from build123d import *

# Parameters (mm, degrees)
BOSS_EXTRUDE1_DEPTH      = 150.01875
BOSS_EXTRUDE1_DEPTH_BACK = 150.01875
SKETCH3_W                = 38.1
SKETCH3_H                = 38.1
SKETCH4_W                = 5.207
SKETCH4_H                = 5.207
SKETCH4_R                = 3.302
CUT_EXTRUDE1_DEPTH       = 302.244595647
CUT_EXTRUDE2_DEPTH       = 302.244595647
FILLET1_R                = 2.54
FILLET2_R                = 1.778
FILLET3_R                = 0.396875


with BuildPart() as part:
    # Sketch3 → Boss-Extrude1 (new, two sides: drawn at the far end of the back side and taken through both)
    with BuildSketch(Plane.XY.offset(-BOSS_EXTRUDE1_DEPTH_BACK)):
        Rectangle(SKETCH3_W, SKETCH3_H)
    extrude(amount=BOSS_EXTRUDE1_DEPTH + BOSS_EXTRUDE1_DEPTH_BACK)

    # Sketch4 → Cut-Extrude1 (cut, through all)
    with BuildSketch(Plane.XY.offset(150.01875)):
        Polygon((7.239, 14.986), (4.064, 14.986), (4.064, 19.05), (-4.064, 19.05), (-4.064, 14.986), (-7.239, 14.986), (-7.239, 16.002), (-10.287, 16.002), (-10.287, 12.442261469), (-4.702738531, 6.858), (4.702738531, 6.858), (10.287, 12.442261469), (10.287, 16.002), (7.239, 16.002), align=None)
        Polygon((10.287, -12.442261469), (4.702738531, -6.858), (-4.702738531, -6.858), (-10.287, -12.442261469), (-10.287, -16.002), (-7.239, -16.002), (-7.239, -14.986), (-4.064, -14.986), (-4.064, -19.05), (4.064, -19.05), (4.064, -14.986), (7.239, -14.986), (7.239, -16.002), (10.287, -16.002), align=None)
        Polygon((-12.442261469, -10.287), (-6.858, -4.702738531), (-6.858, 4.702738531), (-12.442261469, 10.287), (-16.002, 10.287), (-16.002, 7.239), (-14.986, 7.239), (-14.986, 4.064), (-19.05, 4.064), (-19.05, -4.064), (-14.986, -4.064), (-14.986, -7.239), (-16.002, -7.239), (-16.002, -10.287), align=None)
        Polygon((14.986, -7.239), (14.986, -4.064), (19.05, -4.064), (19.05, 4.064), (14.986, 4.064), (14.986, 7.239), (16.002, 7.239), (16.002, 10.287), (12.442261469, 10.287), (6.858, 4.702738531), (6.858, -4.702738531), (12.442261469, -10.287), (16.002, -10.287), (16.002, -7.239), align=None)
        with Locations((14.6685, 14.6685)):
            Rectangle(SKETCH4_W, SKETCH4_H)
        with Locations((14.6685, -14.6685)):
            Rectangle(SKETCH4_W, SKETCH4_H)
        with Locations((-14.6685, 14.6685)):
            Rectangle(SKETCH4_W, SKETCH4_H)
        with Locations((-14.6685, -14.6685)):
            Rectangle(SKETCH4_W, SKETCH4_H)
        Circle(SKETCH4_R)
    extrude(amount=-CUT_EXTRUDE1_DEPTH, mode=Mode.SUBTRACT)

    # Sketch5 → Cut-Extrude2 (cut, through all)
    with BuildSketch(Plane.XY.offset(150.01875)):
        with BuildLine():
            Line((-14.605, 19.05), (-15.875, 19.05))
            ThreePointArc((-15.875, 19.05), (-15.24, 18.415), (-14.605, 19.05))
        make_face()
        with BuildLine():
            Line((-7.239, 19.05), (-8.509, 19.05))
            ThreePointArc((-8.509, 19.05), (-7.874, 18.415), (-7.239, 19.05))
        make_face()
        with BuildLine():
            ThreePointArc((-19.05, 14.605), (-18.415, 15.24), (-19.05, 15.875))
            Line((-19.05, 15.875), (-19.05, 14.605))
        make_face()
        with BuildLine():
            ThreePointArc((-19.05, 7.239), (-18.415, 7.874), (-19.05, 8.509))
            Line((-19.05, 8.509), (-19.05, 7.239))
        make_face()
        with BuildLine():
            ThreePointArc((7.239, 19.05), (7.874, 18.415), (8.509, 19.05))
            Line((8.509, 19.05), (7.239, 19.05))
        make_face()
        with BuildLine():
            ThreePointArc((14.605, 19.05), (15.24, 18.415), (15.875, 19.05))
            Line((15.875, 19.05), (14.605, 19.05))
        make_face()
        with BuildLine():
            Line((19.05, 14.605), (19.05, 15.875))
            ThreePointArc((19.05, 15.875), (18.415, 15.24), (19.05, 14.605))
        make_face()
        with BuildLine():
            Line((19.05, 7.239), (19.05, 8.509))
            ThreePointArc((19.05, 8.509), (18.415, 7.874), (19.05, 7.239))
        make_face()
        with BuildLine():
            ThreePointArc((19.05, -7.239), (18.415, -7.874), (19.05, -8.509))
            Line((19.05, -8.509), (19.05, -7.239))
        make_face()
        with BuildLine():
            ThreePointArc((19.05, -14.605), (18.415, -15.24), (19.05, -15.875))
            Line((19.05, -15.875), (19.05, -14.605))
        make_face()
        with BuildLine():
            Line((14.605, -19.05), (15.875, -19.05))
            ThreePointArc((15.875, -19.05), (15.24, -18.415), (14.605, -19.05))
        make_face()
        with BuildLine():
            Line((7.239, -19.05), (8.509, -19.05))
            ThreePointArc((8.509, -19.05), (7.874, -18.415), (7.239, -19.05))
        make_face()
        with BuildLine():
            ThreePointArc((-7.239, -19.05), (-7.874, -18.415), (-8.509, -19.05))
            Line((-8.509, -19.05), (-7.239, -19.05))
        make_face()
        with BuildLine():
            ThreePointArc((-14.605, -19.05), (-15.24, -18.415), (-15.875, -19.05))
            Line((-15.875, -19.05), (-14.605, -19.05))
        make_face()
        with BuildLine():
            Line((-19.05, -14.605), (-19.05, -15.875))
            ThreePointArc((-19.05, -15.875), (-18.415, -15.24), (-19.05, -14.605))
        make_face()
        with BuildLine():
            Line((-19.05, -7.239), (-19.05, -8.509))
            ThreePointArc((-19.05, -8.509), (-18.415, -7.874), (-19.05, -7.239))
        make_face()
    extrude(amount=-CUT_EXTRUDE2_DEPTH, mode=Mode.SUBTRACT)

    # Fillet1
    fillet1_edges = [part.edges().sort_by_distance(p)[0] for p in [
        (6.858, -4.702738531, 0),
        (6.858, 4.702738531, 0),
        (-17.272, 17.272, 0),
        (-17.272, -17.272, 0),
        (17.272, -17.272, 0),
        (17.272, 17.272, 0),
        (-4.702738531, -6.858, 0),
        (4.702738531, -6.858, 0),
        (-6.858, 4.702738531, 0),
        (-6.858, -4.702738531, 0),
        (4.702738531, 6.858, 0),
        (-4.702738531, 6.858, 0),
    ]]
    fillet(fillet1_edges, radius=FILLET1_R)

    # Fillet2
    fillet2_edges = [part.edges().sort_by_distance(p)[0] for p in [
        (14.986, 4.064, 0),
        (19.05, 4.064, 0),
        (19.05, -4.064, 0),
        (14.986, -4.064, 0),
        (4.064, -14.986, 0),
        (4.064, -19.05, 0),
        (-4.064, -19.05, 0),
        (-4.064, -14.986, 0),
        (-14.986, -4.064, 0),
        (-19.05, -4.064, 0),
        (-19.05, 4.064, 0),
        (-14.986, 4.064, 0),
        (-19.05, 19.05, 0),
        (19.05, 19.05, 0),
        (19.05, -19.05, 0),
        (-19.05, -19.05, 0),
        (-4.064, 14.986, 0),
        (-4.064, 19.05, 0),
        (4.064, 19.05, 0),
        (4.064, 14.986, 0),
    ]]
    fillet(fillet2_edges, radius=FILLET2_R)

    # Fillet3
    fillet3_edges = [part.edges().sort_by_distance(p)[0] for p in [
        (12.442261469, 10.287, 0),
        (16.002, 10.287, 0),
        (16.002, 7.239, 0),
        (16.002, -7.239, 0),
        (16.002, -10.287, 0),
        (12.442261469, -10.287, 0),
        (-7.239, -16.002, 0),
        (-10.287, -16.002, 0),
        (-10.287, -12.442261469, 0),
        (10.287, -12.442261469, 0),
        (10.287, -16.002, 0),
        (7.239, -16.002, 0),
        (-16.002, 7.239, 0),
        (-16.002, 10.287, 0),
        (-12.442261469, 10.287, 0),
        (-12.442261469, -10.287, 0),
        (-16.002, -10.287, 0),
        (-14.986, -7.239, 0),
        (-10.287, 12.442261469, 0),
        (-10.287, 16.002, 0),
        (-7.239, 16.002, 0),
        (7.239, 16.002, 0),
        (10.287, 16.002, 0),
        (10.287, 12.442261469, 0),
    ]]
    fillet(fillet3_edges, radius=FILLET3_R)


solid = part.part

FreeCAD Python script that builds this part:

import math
import FreeCAD as App
import Part
import Sketcher
Q = App.Units.Quantity


def edges_at(feature, points):
    """Names of the edges that pass closest to the given points."""
    edges = feature.Shape.Edges
    near = lambda p: min(range(len(edges)), key=lambda i: edges[i].distToShape(Part.Vertex(*p))[0])
    return sorted({f"Edge{near(p) + 1}" for p in points})

doc = App.newDocument("Part")
body = doc.addObject("PartDesign::Body", "Body")

sketch1 = doc.addObject("Sketcher::SketchObject", "Sketch")
body.addObject(sketch1)
sketch1.AttachmentSupport = (doc.XY_Plane, [""])
sketch1.MapMode = "FlatFace"
sketch1.addGeometry(Part.LineSegment(App.Vector(-19, 19, 0), App.Vector(-19, -19, 0)), False)
sketch1.addGeometry(Part.LineSegment(App.Vector(-19, -19, 0), App.Vector(19, -19, 0)), False)
sketch1.addGeometry(Part.LineSegment(App.Vector(19, -19, 0), App.Vector(19, 19, 0)), False)
sketch1.addGeometry(Part.LineSegment(App.Vector(19, 19, 0), App.Vector(-19, 19, 0)), False)
sketch1.addConstraint(Sketcher.Constraint("Coincident", 0, 2, 1, 1))
sketch1.addConstraint(Sketcher.Constraint("Coincident", 1, 2, 2, 1))
sketch1.addConstraint(Sketcher.Constraint("Coincident", 2, 2, 3, 1))
sketch1.addConstraint(Sketcher.Constraint("Coincident", 3, 2, 0, 1))
sketch1.addConstraint(Sketcher.Constraint("Vertical", 0))
sketch1.addConstraint(Sketcher.Constraint("Horizontal", 1))
sketch1.addConstraint(Sketcher.Constraint("Vertical", 2))
sketch1.addConstraint(Sketcher.Constraint("Horizontal", 3))
sketch1.addConstraint(Sketcher.Constraint("Symmetric", 0, 2, 2, 2, -1, 1))
sketch1.addConstraint(Sketcher.Constraint("Equal", 3, 0))
sketch1.addConstraint(Sketcher.Constraint("DistanceX", 1, 1, 1, 2, Q("1.5 in")))
pad1 = doc.addObject("PartDesign::Pad", "Pad")
body.addObject(pad1)
pad1.Profile = sketch1
pad1.Type = "TwoLengths"
pad1.Length = Q("5.90625 in")
pad1.Length2 = Q("5.90625 in")

sketch2 = doc.addObject("Sketcher::SketchObject", "Sketch001")
body.addObject(sketch2)
sketch2.AttachmentSupport = (doc.XY_Plane, [""])
sketch2.MapMode = "FlatFace"
sketch2.AttachmentOffset = App.Placement(App.Vector(0, 0, 5.90625 * 25.4), App.Rotation())
sketch2.addGeometry(Part.LineSegment(App.Vector(7.2, 15, 0), App.Vector(4.1, 15, 0)), False)
sketch2.addGeometry(Part.LineSegment(App.Vector(4.1, 15, 0), App.Vector(4.1, 19.1, 0)), False)
sketch2.addGeometry(Part.LineSegment(App.Vector(4.1, 19.1, 0), App.Vector(-4.1, 19.1, 0)), False)
sketch2.addGeometry(Part.LineSegment(App.Vector(-4.1, 19.1, 0), App.Vector(-4.1, 15, 0)), False)
sketch2.addGeometry(Part.LineSegment(App.Vector(-4.1, 15, 0), App.Vector(-7.2, 15, 0)), False)
sketch2.addGeometry(Part.LineSegment(App.Vector(-7.2, 15, 0), App.Vector(-7.2, 16, 0)), False)
sketch2.addGeometry(Part.LineSegment(App.Vector(-7.2, 16, 0), App.Vector(-10.3, 16, 0)), False)
sketch2.addGeometry(Part.LineSegment(App.Vector(-10.3, 16, 0), App.Vector(-10.3, 12.4, 0)), False)
sketch2.addGeometry(Part.LineSegment(App.Vector(-10.3, 12.4, 0), App.Vector(-4.7, 6.9, 0)), False)
sketch2.addGeometry(Part.LineSegment(App.Vector(-4.7, 6.9, 0), App.Vector(4.7, 6.9, 0)), False)
sketch2.addGeometry(Part.LineSegment(App.Vector(4.7, 6.9, 0), App.Vector(10.3, 12.4, 0)), False)
sketch2.addGeometry(Part.LineSegment(App.Vector(10.3, 12.4, 0), App.Vector(10.3, 16, 0)), False)
sketch2.addGeometry(Part.LineSegment(App.Vector(10.3, 16, 0), App.Vector(7.2, 16, 0)), False)
sketch2.addGeometry(Part.LineSegment(App.Vector(7.2, 16, 0), App.Vector(7.2, 15, 0)), False)
sketch2.addGeometry(Part.LineSegment(App.Vector(10.3, -12.4, 0), App.Vector(4.7, -6.9, 0)), False)
sketch2.addGeometry(Part.LineSegment(App.Vector(4.7, -6.9, 0), App.Vector(-4.7, -6.9, 0)), False)
sketch2.addGeometry(Part.LineSegment(App.Vector(-4.7, -6.9, 0), App.Vector(-10.3, -12.4, 0)), False)
sketch2.addGeometry(Part.LineSegment(App.Vector(-10.3, -12.4, 0), App.Vector(-10.3, -16, 0)), False)
sketch2.addGeometry(Part.LineSegment(App.Vector(-10.3, -16, 0), App.Vector(-7.2, -16, 0)), False)
sketch2.addGeometry(Part.LineSegment(App.Vector(-7.2, -16, 0), App.Vector(-7.2, -15, 0)), False)
sketch2.addGeometry(Part.LineSegment(App.Vector(-7.2, -15, 0), App.Vector(-4.1, -15, 0)), False)
sketch2.addGeometry(Part.LineSegment(App.Vector(-4.1, -15, 0), App.Vector(-4.1, -19.1, 0)), False)
sketch2.addGeometry(Part.LineSegment(App.Vector(-4.1, -19.1, 0), App.Vector(4.1, -19.1, 0)), False)
sketch2.addGeometry(Part.LineSegment(App.Vector(4.1, -19.1, 0), App.Vector(4.1, -15, 0)), False)
sketch2.addGeometry(Part.LineSegment(App.Vector(4.1, -15, 0), App.Vector(7.2, -15, 0)), False)
sketch2.addGeometry(Part.LineSegment(App.Vector(7.2, -15, 0), App.Vector(7.2, -16, 0)), False)
sketch2.addGeometry(Part.LineSegment(App.Vector(7.2, -16, 0), App.Vector(10.3, -16, 0)), False)
sketch2.addGeometry(Part.LineSegment(App.Vector(10.3, -16, 0), App.Vector(10.3, -12.4, 0)), False)
sketch2.addGeometry(Part.LineSegment(App.Vector(-12.4, -10.3, 0), App.Vector(-6.9, -4.7, 0)), False)
sketch2.addGeometry(Part.LineSegment(App.Vector(-6.9, -4.7, 0), App.Vector(-6.9, 4.7, 0)), False)
sketch2.addGeometry(Part.LineSegment(App.Vector(-6.9, 4.7, 0), App.Vector(-12.4, 10.3, 0)), False)
sketch2.addGeometry(Part.LineSegment(App.Vector(-12.4, 10.3, 0), App.Vector(-16, 10.3, 0)), False)
sketch2.addGeometry(Part.LineSegment(App.Vector(-16, 10.3, 0), App.Vector(-16, 7.2, 0)), False)
sketch2.addGeometry(Part.LineSegment(App.Vector(-16, 7.2, 0), App.Vector(-15, 7.2, 0)), False)
sketch2.addGeometry(Part.LineSegment(App.Vector(-15, 7.2, 0), App.Vector(-15, 4.1, 0)), False)
sketch2.addGeometry(Part.LineSegment(App.Vector(-15, 4.1, 0), App.Vector(-19.1, 4.1, 0)), False)
sketch2.addGeometry(Part.LineSegment(App.Vector(-19.1, 4.1, 0), App.Vector(-19.1, -4.1, 0)), False)
sketch2.addGeometry(Part.LineSegment(App.Vector(-19.1, -4.1, 0), App.Vector(-15, -4.1, 0)), False)
sketch2.addGeometry(Part.LineSegment(App.Vector(-15, -4.1, 0), App.Vector(-15, -7.2, 0)), False)
sketch2.addGeometry(Part.LineSegment(App.Vector(-15, -7.2, 0), App.Vector(-16, -7.2, 0)), False)
sketch2.addGeometry(Part.LineSegment(App.Vector(-16, -7.2, 0), App.Vector(-16, -10.3, 0)), False)
sketch2.addGeometry(Part.LineSegment(App.Vector(-16, -10.3, 0), App.Vector(-12.4, -10.3, 0)), False)
sketch2.addGeometry(Part.LineSegment(App.Vector(15, -7.2, 0), App.Vector(15, -4.1, 0)), False)
sketch2.addGeometry(Part.LineSegment(App.Vector(15, -4.1, 0), App.Vector(19.1, -4.1, 0)), False)
sketch2.addGeometry(Part.LineSegment(App.Vector(19.1, -4.1, 0), App.Vector(19.1, 4.1, 0)), False)
sketch2.addGeometry(Part.LineSegment(App.Vector(19.1, 4.1, 0), App.Vector(15, 4.1, 0)), False)
sketch2.addGeometry(Part.LineSegment(App.Vector(15, 4.1, 0), App.Vector(15, 7.2, 0)), False)
sketch2.addGeometry(Part.LineSegment(App.Vector(15, 7.2, 0), App.Vector(16, 7.2, 0)), False)
sketch2.addGeometry(Part.LineSegment(App.Vector(16, 7.2, 0), App.Vector(16, 10.3, 0)), False)
sketch2.addGeometry(Part.LineSegment(App.Vector(16, 10.3, 0), App.Vector(12.4, 10.3, 0)), False)
sketch2.addGeometry(Part.LineSegment(App.Vector(12.4, 10.3, 0), App.Vector(6.9, 4.7, 0)), False)
sketch2.addGeometry(Part.LineSegment(App.Vector(6.9, 4.7, 0), App.Vector(6.9, -4.7, 0)), False)
sketch2.addGeometry(Part.LineSegment(App.Vector(6.9, -4.7, 0), App.Vector(12.4, -10.3, 0)), False)
sketch2.addGeometry(Part.LineSegment(App.Vector(12.4, -10.3, 0), App.Vector(16, -10.3, 0)), False)
sketch2.addGeometry(Part.LineSegment(App.Vector(16, -10.3, 0), App.Vector(16, -7.2, 0)), False)
sketch2.addGeometry(Part.LineSegment(App.Vector(16, -7.2, 0), App.Vector(15, -7.2, 0)), False)
sketch2.addGeometry(Part.LineSegment(App.Vector(12.1, 17.3, 0), App.Vector(12.1, 12.1, 0)), False)
sketch2.addGeometry(Part.LineSegment(App.Vector(12.1, 12.1, 0), App.Vector(17.3, 12.1, 0)), False)
sketch2.addGeometry(Part.LineSegment(App.Vector(17.3, 12.1, 0), App.Vector(17.3, 17.3, 0)), False)
sketch2.addGeometry(Part.LineSegment(App.Vector(17.3, 17.3, 0), App.Vector(12.1, 17.3, 0)), False)
sketch2.addGeometry(Part.LineSegment(App.Vector(12.1, -12.1, 0), App.Vector(12.1, -17.3, 0)), False)
sketch2.addGeometry(Part.LineSegment(App.Vector(12.1, -17.3, 0), App.Vector(17.3, -17.3, 0)), False)
sketch2.addGeometry(Part.LineSegment(App.Vector(17.3, -17.3, 0), App.Vector(17.3, -12.1, 0)), False)
sketch2.addGeometry(Part.LineSegment(App.Vector(17.3, -12.1, 0), App.Vector(12.1, -12.1, 0)), False)
sketch2.addGeometry(Part.LineSegment(App.Vector(-17.3, 17.3, 0), App.Vector(-17.3, 12.1, 0)), False)
sketch2.addGeometry(Part.LineSegment(App.Vector(-17.3, 12.1, 0), App.Vector(-12.1, 12.1, 0)), False)
sketch2.addGeometry(Part.LineSegment(App.Vector(-12.1, 12.1, 0), App.Vector(-12.1, 17.3, 0)), False)
sketch2.addGeometry(Part.LineSegment(App.Vector(-12.1, 17.3, 0), App.Vector(-17.3, 17.3, 0)), False)
sketch2.addGeometry(Part.LineSegment(App.Vector(-17.3, -12.1, 0), App.Vector(-17.3, -17.3, 0)), False)
sketch2.addGeometry(Part.LineSegment(App.Vector(-17.3, -17.3, 0), App.Vector(-12.1, -17.3, 0)), False)
sketch2.addGeometry(Part.LineSegment(App.Vector(-12.1, -17.3, 0), App.Vector(-12.1, -12.1, 0)), False)
sketch2.addGeometry(Part.LineSegment(App.Vector(-12.1, -12.1, 0), App.Vector(-17.3, -12.1, 0)), False)
sketch2.addGeometry(Part.Circle(App.Vector(0, 0, 0), App.Vector(0, 0, 1), 3.3), False)
sketch2.addConstraint(Sketcher.Constraint("Coincident", 0, 2, 1, 1))
sketch2.addConstraint(Sketcher.Constraint("Coincident", 1, 2, 2, 1))
sketch2.addConstraint(Sketcher.Constraint("Coincident", 2, 2, 3, 1))
sketch2.addConstraint(Sketcher.Constraint("Coincident", 3, 2, 4, 1))
sketch2.addConstraint(Sketcher.Constraint("Coincident", 4, 2, 5, 1))
sketch2.addConstraint(Sketcher.Constraint("Coincident", 5, 2, 6, 1))
sketch2.addConstraint(Sketcher.Constraint("Coincident", 6, 2, 7, 1))
sketch2.addConstraint(Sketcher.Constraint("Coincident", 7, 2, 8, 1))
sketch2.addConstraint(Sketcher.Constraint("Coincident", 8, 2, 9, 1))
sketch2.addConstraint(Sketcher.Constraint("Coincident", 9, 2, 10, 1))
sketch2.addConstraint(Sketcher.Constraint("Coincident", 10, 2, 11, 1))
sketch2.addConstraint(Sketcher.Constraint("Coincident", 11, 2, 12, 1))
sketch2.addConstraint(Sketcher.Constraint("Coincident", 12, 2, 13, 1))
sketch2.addConstraint(Sketcher.Constraint("Coincident", 13, 2, 0, 1))
sketch2.addConstraint(Sketcher.Constraint("Coincident", 14, 2, 15, 1))
sketch2.addConstraint(Sketcher.Constraint("Coincident", 15, 2, 16, 1))
sketch2.addConstraint(Sketcher.Constraint("Coincident", 16, 2, 17, 1))
sketch2.addConstraint(Sketcher.Constraint("Coincident", 17, 2, 18, 1))
sketch2.addConstraint(Sketcher.Constraint("Coincident", 18, 2, 19, 1))
sketch2.addConstraint(Sketcher.Constraint("Coincident", 19, 2, 20, 1))
sketch2.addConstraint(Sketcher.Constraint("Coincident", 20, 2, 21, 1))
sketch2.addConstraint(Sketcher.Constraint("Coincident", 21, 2, 22, 1))
sketch2.addConstraint(Sketcher.Constraint("Coincident", 22, 2, 23, 1))
sketch2.addConstraint(Sketcher.Constraint("Coincident", 23, 2, 24, 1))
sketch2.addConstraint(Sketcher.Constraint("Coincident", 24, 2, 25, 1))
sketch2.addConstraint(Sketcher.Constraint("Coincident", 25, 2, 26, 1))
sketch2.addConstraint(Sketcher.Constraint("Coincident", 26, 2, 27, 1))
sketch2.addConstraint(Sketcher.Constraint("Coincident", 27, 2, 14, 1))
sketch2.addConstraint(Sketcher.Constraint("Coincident", 28, 2, 29, 1))
sketch2.addConstraint(Sketcher.Constraint("Coincident", 29, 2, 30, 1))
sketch2.addConstraint(Sketcher.Constraint("Coincident", 30, 2, 31, 1))
sketch2.addConstraint(Sketcher.Constraint("Coincident", 31, 2, 32, 1))
sketch2.addConstraint(Sketcher.Constraint("Coincident", 32, 2, 33, 1))
sketch2.addConstraint(Sketcher.Constraint("Coincident", 33, 2, 34, 1))
sketch2.addConstraint(Sketcher.Constraint("Coincident", 34, 2, 35, 1))
sketch2.addConstraint(Sketcher.Constraint("Coincident", 35, 2, 36, 1))
sketch2.addConstraint(Sketcher.Constraint("Coincident", 36, 2, 37, 1))
sketch2.addConstraint(Sketcher.Constraint("Coincident", 37, 2, 38, 1))
sketch2.addConstraint(Sketcher.Constraint("Coincident", 38, 2, 39, 1))
sketch2.addConstraint(Sketcher.Constraint("Coincident", 39, 2, 40, 1))
sketch2.addConstraint(Sketcher.Constraint("Coincident", 40, 2, 41, 1))
sketch2.addConstraint(Sketcher.Constraint("Coincident", 41, 2, 28, 1))
sketch2.addConstraint(Sketcher.Constraint("Coincident", 42, 2, 43, 1))
sketch2.addConstraint(Sketcher.Constraint("Coincident", 43, 2, 44, 1))
sketch2.addConstraint(Sketcher.Constraint("Coincident", 44, 2, 45, 1))
sketch2.addConstraint(Sketcher.Constraint("Coincident", 45, 2, 46, 1))
sketch2.addConstraint(Sketcher.Constraint("Coincident", 46, 2, 47, 1))
sketch2.addConstraint(Sketcher.Constraint("Coincident", 47, 2, 48, 1))
sketch2.addConstraint(Sketcher.Constraint("Coincident", 48, 2, 49, 1))
sketch2.addConstraint(Sketcher.Constraint("Coincident", 49, 2, 50, 1))
sketch2.addConstraint(Sketcher.Constraint("Coincident", 50, 2, 51, 1))
sketch2.addConstraint(Sketcher.Constraint("Coincident", 51, 2, 52, 1))
sketch2.addConstraint(Sketcher.Constraint("Coincident", 52, 2, 53, 1))
sketch2.addConstraint(Sketcher.Constraint("Coincident", 53, 2, 54, 1))
sketch2.addConstraint(Sketcher.Constraint("Coincident", 54, 2, 55, 1))
sketch2.addConstraint(Sketcher.Constraint("Coincident", 55, 2, 42, 1))
sketch2.addConstraint(Sketcher.Constraint("Coincident", 56, 2, 57, 1))
sketch2.addConstraint(Sketcher.Constraint("Coincident", 57, 2, 58, 1))
sketch2.addConstraint(Sketcher.Constraint("Coincident", 58, 2, 59, 1))
sketch2.addConstraint(Sketcher.Constraint("Coincident", 59, 2, 56, 1))
sketch2.addConstraint(Sketcher.Constraint("Coincident", 60, 2, 61, 1))
sketch2.addConstraint(Sketcher.Constraint("Coincident", 61, 2, 62, 1))
sketch2.addConstraint(Sketcher.Constraint("Coincident", 62, 2, 63, 1))
sketch2.addConstraint(Sketcher.Constraint("Coincident", 63, 2, 60, 1))
sketch2.addConstraint(Sketcher.Constraint("Coincident", 64, 2, 65, 1))
sketch2.addConstraint(Sketcher.Constraint("Coincident", 65, 2, 66, 1))
sketch2.addConstraint(Sketcher.Constraint("Coincident", 66, 2, 67, 1))
sketch2.addConstraint(Sketcher.Constraint("Coincident", 67, 2, 64, 1))
sketch2.addConstraint(Sketcher.Constraint("Coincident", 68, 2, 69, 1))
sketch2.addConstraint(Sketcher.Constraint("Coincident", 69, 2, 70, 1))
sketch2.addConstraint(Sketcher.Constraint("Coincident", 70, 2, 71, 1))
sketch2.addConstraint(Sketcher.Constraint("Coincident", 71, 2, 68, 1))
sketch2.addConstraint(Sketcher.Constraint("Horizontal", 0))
sketch2.addConstraint(Sketcher.Constraint("Vertical", 1))
sketch2.addConstraint(Sketcher.Constraint("Horizontal", 2))
sketch2.addConstraint(Sketcher.Constraint("Vertical", 3))
sketch2.addConstraint(Sketcher.Constraint("Horizontal", 4))
sketch2.addConstraint(Sketcher.Constraint("Vertical", 5))
sketch2.addConstraint(Sketcher.Constraint("Horizontal", 6))
sketch2.addConstraint(Sketcher.Constraint("Vertical", 7))
sketch2.addConstraint(Sketcher.Constraint("Horizontal", 9))
sketch2.addConstraint(Sketcher.Constraint("Vertical", 11))
sketch2.addConstraint(Sketcher.Constraint("Horizontal", 12))
sketch2.addConstraint(Sketcher.Constraint("Vertical", 13))
sketch2.addConstraint(Sketcher.Constraint("Horizontal", 15))
sketch2.addConstraint(Sketcher.Constraint("Vertical", 17))
sketch2.addConstraint(Sketcher.Constraint("Horizontal", 18))
sketch2.addConstraint(Sketcher.Constraint("Vertical", 19))
sketch2.addConstraint(Sketcher.Constraint("Horizontal", 20))
sketch2.addConstraint(Sketcher.Constraint("Vertical", 21))
sketch2.addConstraint(Sketcher.Constraint("Horizontal", 22))
sketch2.addConstraint(Sketcher.Constraint("Vertical", 23))
sketch2.addConstraint(Sketcher.Constraint("Horizontal", 24))
sketch2.addConstraint(Sketcher.Constraint("Vertical", 25))
sketch2.addConstraint(Sketcher.Constraint("Horizontal", 26))
sketch2.addConstraint(Sketcher.Constraint("Vertical", 27))
sketch2.addConstraint(Sketcher.Constraint("Vertical", 29))
sketch2.addConstraint(Sketcher.Constraint("Horizontal", 31))
sketch2.addConstraint(Sketcher.Constraint("Vertical", 32))
sketch2.addConstraint(Sketcher.Constraint("Horizontal", 33))
sketch2.addConstraint(Sketcher.Constraint("Vertical", 34))
sketch2.addConstraint(Sketcher.Constraint("Horizontal", 35))
sketch2.addConstraint(Sketcher.Constraint("Vertical", 36))
sketch2.addConstraint(Sketcher.Constraint("Horizontal", 37))
sketch2.addConstraint(Sketcher.Constraint("Vertical", 38))
sketch2.addConstraint(Sketcher.Constraint("Horizontal", 39))
sketch2.addConstraint(Sketcher.Constraint("Vertical", 40))
sketch2.addConstraint(Sketcher.Constraint("Horizontal", 41))
sketch2.addConstraint(Sketcher.Constraint("Vertical", 42))
sketch2.addConstraint(Sketcher.Constraint("Horizontal", 43))
sketch2.addConstraint(Sketcher.Constraint("Vertical", 44))
sketch2.addConstraint(Sketcher.Constraint("Horizontal", 45))
sketch2.addConstraint(Sketcher.Constraint("Vertical", 46))
sketch2.addConstraint(Sketcher.Constraint("Horizontal", 47))
sketch2.addConstraint(Sketcher.Constraint("Vertical", 48))
sketch2.addConstraint(Sketcher.Constraint("Horizontal", 49))
sketch2.addConstraint(Sketcher.Constraint("Vertical", 51))
sketch2.addConstraint(Sketcher.Constraint("Horizontal", 53))
sketch2.addConstraint(Sketcher.Constraint("Vertical", 54))
sketch2.addConstraint(Sketcher.Constraint("Horizontal", 55))
sketch2.addConstraint(Sketcher.Constraint("Vertical", 56))
sketch2.addConstraint(Sketcher.Constraint("Horizontal", 57))
sketch2.addConstraint(Sketcher.Constraint("Vertical", 58))
sketch2.addConstraint(Sketcher.Constraint("Horizontal", 59))
sketch2.addConstraint(Sketcher.Constraint("Vertical", 60))
sketch2.addConstraint(Sketcher.Constraint("Horizontal", 61))
sketch2.addConstraint(Sketcher.Constraint("Vertical", 62))
sketch2.addConstraint(Sketcher.Constraint("Horizontal", 63))
sketch2.addConstraint(Sketcher.Constraint("Vertical", 64))
sketch2.addConstraint(Sketcher.Constraint("Horizontal", 65))
sketch2.addConstraint(Sketcher.Constraint("Vertical", 66))
sketch2.addConstraint(Sketcher.Constraint("Horizontal", 67))
sketch2.addConstraint(Sketcher.Constraint("Vertical", 68))
sketch2.addConstraint(Sketcher.Constraint("Horizontal", 69))
sketch2.addConstraint(Sketcher.Constraint("Vertical", 70))
sketch2.addConstraint(Sketcher.Constraint("Horizontal", 71))
sketch2.addConstraint(Sketcher.Constraint("Coincident", 72, 3, -1, 1))
sketch2.addConstraint(Sketcher.Constraint("Symmetric", 8, 2, 14, 2, -1, 1))
sketch2.addConstraint(Sketcher.Constraint("Symmetric", 10, 2, 16, 2, -1, 1))
sketch2.addConstraint(Sketcher.Constraint("Symmetric", 12, 2, 18, 2, -1, 1))
sketch2.addConstraint(Sketcher.Constraint("Symmetric", 0, 2, 20, 2, -1, 1))
sketch2.addConstraint(Sketcher.Constraint("Symmetric", 2, 2, 22, 2, -1, 1))
sketch2.addConstraint(Sketcher.Constraint("Symmetric", 4, 2, 24, 2, -1, 1))
sketch2.addConstraint(Sketcher.Constraint("Symmetric", 6, 2, 26, 2, -1, 1))
sketch2.addConstraint(Sketcher.Constraint("Symmetric", 34, 2, 42, 2, -1, 1))
sketch2.addConstraint(Sketcher.Constraint("Symmetric", 36, 2, 44, 2, -1, 1))
sketch2.addConstraint(Sketcher.Constraint("Symmetric", 38, 2, 46, 2, -1, 1))
sketch2.addConstraint(Sketcher.Constraint("Symmetric", 40, 2, 48, 2, -1, 1))
sketch2.addConstraint(Sketcher.Constraint("Symmetric", 28, 2, 50, 2, -1, 1))
sketch2.addConstraint(Sketcher.Constraint("Symmetric", 30, 2, 52, 2, -1, 1))
sketch2.addConstraint(Sketcher.Constraint("Symmetric", 32, 2, 54, 2, -1, 1))
sketch2.addConstraint(Sketcher.Constraint("Symmetric", 62, 2, 64, 2, -1, 1))
sketch2.addConstraint(Sketcher.Constraint("Symmetric", 60, 2, 66, 2, -1, 1))
sketch2.addConstraint(Sketcher.Constraint("Symmetric", 58, 2, 68, 2, -1, 1))
sketch2.addConstraint(Sketcher.Constraint("Symmetric", 56, 2, 70, 2, -1, 1))
sketch2.addConstraint(Sketcher.Constraint("Symmetric", 0, 2, 3, 2, -2))
sketch2.addConstraint(Sketcher.Constraint("Symmetric", 7, 2, 10, 2, -2))
sketch2.addConstraint(Sketcher.Constraint("Symmetric", 5, 2, 12, 2, -2))
sketch2.addConstraint(Sketcher.Constraint("Symmetric", 37, 2, 42, 2, -2))
sketch2.addConstraint(Sketcher.Constraint("Symmetric", 32, 2, 47, 2, -2))
sketch2.addConstraint(Sketcher.Constraint("Symmetric", 30, 2, 49, 2, -2))
sketch2.addConstraint(Sketcher.Constraint("Symmetric", 57, 2, 64, 2, -2))
sketch2.addConstraint(Sketcher.Constraint("Symmetric", 59, 2, 66, 2, -2))
sketch2.addConstraint(Sketcher.Constraint("Perpendicular", 8, 10))
sketch2.addConstraint(Sketcher.Constraint("Perpendicular", 10, 14))
sketch2.addConstraint(Sketcher.Constraint("Perpendicular", 14, 16))
sketch2.addConstraint(Sketcher.Constraint("Parallel", 16, 28))
sketch2.addConstraint(Sketcher.Constraint("Perpendicular", 28, 30))
sketch2.addConstraint(Sketcher.Constraint("Perpendicular", 30, 50))
sketch2.addConstraint(Sketcher.Constraint("Perpendicular", 50, 52))
sketch2.addConstraint(Sketcher.Constraint("Horizontal", 29, 2, 50, 2))
sketch2.addConstraint(Sketcher.Constraint("Equal", 45, 1))
sketch2.addConstraint(Sketcher.Constraint("Equal", 55, 5))
sketch2.addConstraint(Sketcher.Constraint("Equal", 53, 7))
sketch2.addConstraint(Sketcher.Constraint("Equal", 15, 29))
sketch2.addConstraint(Sketcher.Constraint("Equal", 26, 32))
sketch2.addConstraint(Sketcher.Constraint("Equal", 24, 34))
sketch2.addConstraint(Sketcher.Constraint("Equal", 22, 36))
sketch2.addConstraint(Sketcher.Constraint("Equal", 71, 56))
sketch2.addConstraint(Sketcher.Constraint("Diameter", 72, Q("0.26 in")))
sketch2.addConstraint(Sketcher.Constraint("DistanceX", 2, 2, 2, 1, Q("0.32 in")))
sketch2.addConstraint(Sketcher.Constraint("DistanceX", 6, 2, 6, 1, Q("0.12 in")))
sketch2.addConstraint(Sketcher.Constraint("DistanceX", 33, 1, 33, 2, Q("0.04 in")))
sketch2.addConstraint(Sketcher.Constraint("DistanceX", 35, 2, 35, 1, Q("0.16 in")))
sketch2.addConstraint(Sketcher.Constraint("DistanceX", 0, 2, 0, 1, Q("0.125 in")))
sketch2.addConstraint(Sketcher.Constraint("DistanceX", 57, 1, 57, 2, Q("0.205 in")))
sketch2.addConstraint(Sketcher.Constraint("DistanceY", -1, 1, 0, 2, Q("0.59 in")))
sketch2.addConstraint(Sketcher.Constraint("DistanceY", -1, 1, 8, 2, Q("0.27 in")))
sketch2.addConstraint(Sketcher.Constraint("DistanceX", 28, 2, -1, 1, Q("0.27 in")))
sketch2.addConstraint(Sketcher.Constraint("DistanceX", -1, 1, 57, 2, Q("0.68 in")))
sketch2.addConstraint(Sketcher.Constraint("DistanceY", -1, 1, 58, 2, Q("0.68 in")))
sketch2.addConstraint(Sketcher.Constraint("DistanceX", 31, 2, 31, 1, 3.559739))
pocket1 = doc.addObject("PartDesign::Pocket", "Pocket")
body.addObject(pocket1)
pocket1.Profile = sketch2
pocket1.Type = "ThroughAll"

sketch3 = doc.addObject("Sketcher::SketchObject", "Sketch002")
body.addObject(sketch3)
sketch3.AttachmentSupport = (doc.XY_Plane, [""])
sketch3.MapMode = "FlatFace"
sketch3.AttachmentOffset = App.Placement(App.Vector(0, 0, 5.90625 * 25.4), App.Rotation())
sketch3.addGeometry(Part.LineSegment(App.Vector(-14.6, 19.1, 0), App.Vector(-15.9, 19.1, 0)), False)
sketch3.addGeometry(Part.ArcOfCircle(Part.Circle(App.Vector(-15.2, 19.1, 0), App.Vector(0, 0, 1), 0.6), math.radians(180), math.radians(360)), False)
sketch3.addGeometry(Part.LineSegment(App.Vector(-7.2, 19.1, 0), App.Vector(-8.5, 19.1, 0)), False)
sketch3.addGeometry(Part.ArcOfCircle(Part.Circle(App.Vector(-7.9, 19.1, 0), App.Vector(0, 0, 1), 0.6), math.radians(180), math.radians(360)), False)
sketch3.addGeometry(Part.ArcOfCircle(Part.Circle(App.Vector(-19.1, 15.2, 0), App.Vector(0, 0, 1), 0.6), math.radians(-90), math.radians(90)), False)
sketch3.addGeometry(Part.LineSegment(App.Vector(-19.1, 15.9, 0), App.Vector(-19.1, 14.6, 0)), False)
sketch3.addGeometry(Part.ArcOfCircle(Part.Circle(App.Vector(-19.1, 7.9, 0), App.Vector(0, 0, 1), 0.6), math.radians(-90), math.radians(90)), False)
sketch3.addGeometry(Part.LineSegment(App.Vector(-19.1, 8.5, 0), App.Vector(-19.1, 7.2, 0)), False)
sketch3.addGeometry(Part.ArcOfCircle(Part.Circle(App.Vector(7.9, 19.1, 0), App.Vector(0, 0, 1), 0.6), math.radians(180), math.radians(360)), False)
sketch3.addGeometry(Part.LineSegment(App.Vector(8.5, 19.1, 0), App.Vector(7.2, 19.1, 0)), False)
sketch3.addGeometry(Part.ArcOfCircle(Part.Circle(App.Vector(15.2, 19.1, 0), App.Vector(0, 0, 1), 0.6), math.radians(180), math.radians(360)), False)
sketch3.addGeometry(Part.LineSegment(App.Vector(15.9, 19.1, 0), App.Vector(14.6, 19.1, 0)), False)
sketch3.addGeometry(Part.LineSegment(App.Vector(19.1, 14.6, 0), App.Vector(19.1, 15.9, 0)), False)
sketch3.addGeometry(Part.ArcOfCircle(Part.Circle(App.Vector(19.1, 15.2, 0), App.Vector(0, 0, 1), 0.6), math.radians(90), math.radians(270)), False)
sketch3.addGeometry(Part.LineSegment(App.Vector(19.1, 7.2, 0), App.Vector(19.1, 8.5, 0)), False)
sketch3.addGeometry(Part.ArcOfCircle(Part.Circle(App.Vector(19.1, 7.9, 0), App.Vector(0, 0, 1), 0.6), math.radians(90), math.radians(270)), False)
sketch3.addGeometry(Part.ArcOfCircle(Part.Circle(App.Vector(19.1, -7.9, 0), App.Vector(0, 0, 1), 0.6), math.radians(90), math.radians(270)), False)
sketch3.addGeometry(Part.LineSegment(App.Vector(19.1, -8.5, 0), App.Vector(19.1, -7.2, 0)), False)
sketch3.addGeometry(Part.ArcOfCircle(Part.Circle(App.Vector(19.1, -15.2, 0), App.Vector(0, 0, 1), 0.6), math.radians(90), math.radians(270)), False)
sketch3.addGeometry(Part.LineSegment(App.Vector(19.1, -15.9, 0), App.Vector(19.1, -14.6, 0)), False)
sketch3.addGeometry(Part.LineSegment(App.Vector(14.6, -19.1, 0), App.Vector(15.9, -19.1, 0)), False)
sketch3.addGeometry(Part.ArcOfCircle(Part.Circle(App.Vector(15.2, -19.1, 0), App.Vector(0, 0, 1), 0.6), math.radians(0), math.radians(180)), False)
sketch3.addGeometry(Part.LineSegment(App.Vector(7.2, -19.1, 0), App.Vector(8.5, -19.1, 0)), False)
sketch3.addGeometry(Part.ArcOfCircle(Part.Circle(App.Vector(7.9, -19.1, 0), App.Vector(0, 0, 1), 0.6), math.radians(0), math.radians(180)), False)
sketch3.addGeometry(Part.ArcOfCircle(Part.Circle(App.Vector(-7.9, -19.1, 0), App.Vector(0, 0, 1), 0.6), math.radians(0), math.radians(180)), False)
sketch3.addGeometry(Part.LineSegment(App.Vector(-8.5, -19.1, 0), App.Vector(-7.2, -19.1, 0)), False)
sketch3.addGeometry(Part.ArcOfCircle(Part.Circle(App.Vector(-15.2, -19.1, 0), App.Vector(0, 0, 1), 0.6), math.radians(0), math.radians(180)), False)
sketch3.addGeometry(Part.LineSegment(App.Vector(-15.9, -19.1, 0), App.Vector(-14.6, -19.1, 0)), False)
sketch3.addGeometry(Part.LineSegment(App.Vector(-19.1, -14.6, 0), App.Vector(-19.1, -15.9, 0)), False)
sketch3.addGeometry(Part.ArcOfCircle(Part.Circle(App.Vector(-19.1, -15.2, 0), App.Vector(0, 0, 1), 0.6), math.radians(-90), math.radians(90)), False)
sketch3.addGeometry(Part.LineSegment(App.Vector(-19.1, -7.2, 0), App.Vector(-19.1, -8.5, 0)), False)
sketch3.addGeometry(Part.ArcOfCircle(Part.Circle(App.Vector(-19.1, -7.9, 0), App.Vector(0, 0, 1), 0.6), math.radians(-90), math.radians(90)), False)
sketch3.addConstraint(Sketcher.Constraint("Coincident", 0, 1, 1, 2))
sketch3.addConstraint(Sketcher.Constraint("Coincident", 1, 1, 0, 2))
sketch3.addConstraint(Sketcher.Constraint("Coincident", 2, 1, 3, 2))
sketch3.addConstraint(Sketcher.Constraint("Coincident", 3, 1, 2, 2))
sketch3.addConstraint(Sketcher.Constraint("Coincident", 4, 1, 5, 2))
sketch3.addConstraint(Sketcher.Constraint("Coincident", 5, 1, 4, 2))
sketch3.addConstraint(Sketcher.Constraint("Coincident", 6, 1, 7, 2))
sketch3.addConstraint(Sketcher.Constraint("Coincident", 7, 1, 6, 2))
sketch3.addConstraint(Sketcher.Constraint("Coincident", 8, 1, 9, 2))
sketch3.addConstraint(Sketcher.Constraint("Coincident", 9, 1, 8, 2))
sketch3.addConstraint(Sketcher.Constraint("Coincident", 10, 1, 11, 2))
sketch3.addConstraint(Sketcher.Constraint("Coincident", 11, 1, 10, 2))
sketch3.addConstraint(Sketcher.Constraint("Coincident", 12, 1, 13, 2))
sketch3.addConstraint(Sketcher.Constraint("Coincident", 13, 1, 12, 2))
sketch3.addConstraint(Sketcher.Constraint("Coincident", 14, 1, 15, 2))
sketch3.addConstraint(Sketcher.Constraint("Coincident", 15, 1, 14, 2))
sketch3.addConstraint(Sketcher.Constraint("Coincident", 16, 1, 17, 2))
sketch3.addConstraint(Sketcher.Constraint("Coincident", 17, 1, 16, 2))
sketch3.addConstraint(Sketcher.Constraint("Coincident", 18, 1, 19, 2))
sketch3.addConstraint(Sketcher.Constraint("Coincident", 19, 1, 18, 2))
sketch3.addConstraint(Sketcher.Constraint("Coincident", 20, 1, 21, 2))
sketch3.addConstraint(Sketcher.Constraint("Coincident", 21, 1, 20, 2))
sketch3.addConstraint(Sketcher.Constraint("Coincident", 22, 1, 23, 2))
sketch3.addConstraint(Sketcher.Constraint("Coincident", 23, 1, 22, 2))
sketch3.addConstraint(Sketcher.Constraint("Coincident", 24, 1, 25, 2))
sketch3.addConstraint(Sketcher.Constraint("Coincident", 25, 1, 24, 2))
sketch3.addConstraint(Sketcher.Constraint("Coincident", 26, 1, 27, 2))
sketch3.addConstraint(Sketcher.Constraint("Coincident", 27, 1, 26, 2))
sketch3.addConstraint(Sketcher.Constraint("Coincident", 28, 1, 29, 2))
sketch3.addConstraint(Sketcher.Constraint("Coincident", 29, 1, 28, 2))
sketch3.addConstraint(Sketcher.Constraint("Coincident", 30, 1, 31, 2))
sketch3.addConstraint(Sketcher.Constraint("Coincident", 31, 1, 30, 2))
sketch3.addConstraint(Sketcher.Constraint("Horizontal", 0))
sketch3.addConstraint(Sketcher.Constraint("Horizontal", 2))
sketch3.addConstraint(Sketcher.Constraint("Vertical", 5))
sketch3.addConstraint(Sketcher.Constraint("Vertical", 7))
sketch3.addConstraint(Sketcher.Constraint("Horizontal", 9))
sketch3.addConstraint(Sketcher.Constraint("Horizontal", 11))
sketch3.addConstraint(Sketcher.Constraint("Vertical", 12))
sketch3.addConstraint(Sketcher.Constraint("Vertical", 14))
sketch3.addConstraint(Sketcher.Constraint("Vertical", 17))
sketch3.addConstraint(Sketcher.Constraint("Vertical", 19))
sketch3.addConstraint(Sketcher.Constraint("Horizontal", 20))
sketch3.addConstraint(Sketcher.Constraint("Horizontal", 22))
sketch3.addConstraint(Sketcher.Constraint("Horizontal", 25))
sketch3.addConstraint(Sketcher.Constraint("Horizontal", 27))
sketch3.addConstraint(Sketcher.Constraint("Vertical", 28))
sketch3.addConstraint(Sketcher.Constraint("Vertical", 30))
sketch3.addConstraint(Sketcher.Constraint("Equal", 1, 3))
sketch3.addConstraint(Sketcher.Constraint("Equal", 3, 4))
sketch3.addConstraint(Sketcher.Constraint("Equal", 4, 6))
sketch3.addConstraint(Sketcher.Constraint("Equal", 6, 8))
sketch3.addConstraint(Sketcher.Constraint("Equal", 8, 10))
sketch3.addConstraint(Sketcher.Constraint("Equal", 10, 13))
sketch3.addConstraint(Sketcher.Constraint("Equal", 13, 15))
sketch3.addConstraint(Sketcher.Constraint("Equal", 15, 16))
sketch3.addConstraint(Sketcher.Constraint("Equal", 16, 18))
sketch3.addConstraint(Sketcher.Constraint("Equal", 18, 21))
sketch3.addConstraint(Sketcher.Constraint("Equal", 21, 23))
sketch3.addConstraint(Sketcher.Constraint("Equal", 23, 24))
sketch3.addConstraint(Sketcher.Constraint("Equal", 24, 26))
sketch3.addConstraint(Sketcher.Constraint("Equal", 26, 29))
sketch3.addConstraint(Sketcher.Constraint("Equal", 29, 31))
sketch3.addConstraint(Sketcher.Constraint("Symmetric", 6, 3, 16, 3, -1, 1))
sketch3.addConstraint(Sketcher.Constraint("Symmetric", 4, 3, 18, 3, -1, 1))
sketch3.addConstraint(Sketcher.Constraint("Symmetric", 1, 3, 21, 3, -1, 1))
sketch3.addConstraint(Sketcher.Constraint("Symmetric", 3, 3, 23, 3, -1, 1))
sketch3.addConstraint(Sketcher.Constraint("Symmetric", 8, 3, 24, 3, -1, 1))
sketch3.addConstraint(Sketcher.Constraint("Symmetric", 10, 3, 26, 3, -1, 1))
sketch3.addConstraint(Sketcher.Constraint("Symmetric", 13, 3, 29, 3, -1, 1))
sketch3.addConstraint(Sketcher.Constraint("Symmetric", 15, 3, 31, 3, -1, 1))
sketch3.addConstraint(Sketcher.Constraint("Symmetric", 3, 3, 8, 3, -2))
sketch3.addConstraint(Sketcher.Constraint("Symmetric", 1, 3, 10, 3, -2))
sketch3.addConstraint(Sketcher.Constraint("Symmetric", 4, 3, 13, 3, -2))
sketch3.addConstraint(Sketcher.Constraint("Symmetric", 6, 3, 15, 3, -2))
sketch3.addConstraint(Sketcher.Constraint("Horizontal", 1, 3, 3, 3))
sketch3.addConstraint(Sketcher.Constraint("Horizontal", 10, 3, 0, 1))
sketch3.addConstraint(Sketcher.Constraint("Horizontal", 1, 1, 2, 1))
sketch3.addConstraint(Sketcher.Constraint("Horizontal", 3, 1, 8, 1))
sketch3.addConstraint(Sketcher.Constraint("Horizontal", 9, 1, 10, 1))
sketch3.addConstraint(Sketcher.Constraint("Horizontal", 26, 3, 20, 1))
sketch3.addConstraint(Sketcher.Constraint("Horizontal", 21, 1, 22, 1))
sketch3.addConstraint(Sketcher.Constraint("Horizontal", 23, 1, 24, 1))
sketch3.addConstraint(Sketcher.Constraint("Horizontal", 25, 1, 26, 1))
sketch3.addConstraint(Sketcher.Constraint("Vertical", 4, 3, 6, 3))
sketch3.addConstraint(Sketcher.Constraint("Vertical", 31, 3, 4, 1))
sketch3.addConstraint(Sketcher.Constraint("Vertical", 5, 1, 6, 1))
sketch3.addConstraint(Sketcher.Constraint("Vertical", 18, 3, 12, 1))
sketch3.addConstraint(Sketcher.Constraint("Vertical", 13, 1, 14, 1))
sketch3.addConstraint(Sketcher.Constraint("Vertical", 15, 1, 16, 1))
sketch3.addConstraint(Sketcher.Constraint("Vertical", 17, 1, 18, 1))
sketch3.addConstraint(Sketcher.Constraint("Vertical", 7, 1, 28, 1))
sketch3.addConstraint(Sketcher.Constraint("Vertical", 29, 1, 30, 1))
sketch3.addConstraint(Sketcher.Constraint("Radius", 1, Q("0.025 in")))
sketch3.addConstraint(Sketcher.Constraint("DistanceX", 1, 3, -1, 1, Q("0.6 in")))
sketch3.addConstraint(Sketcher.Constraint("DistanceY", -1, 1, 4, 3, Q("0.6 in")))
sketch3.addConstraint(Sketcher.Constraint("DistanceX", 4, 3, 13, 3, Q("1.5 in")))
sketch3.addConstraint(Sketcher.Constraint("DistanceY", 21, 3, 10, 3, Q("1.5 in")))
sketch3.addConstraint(Sketcher.Constraint("DistanceX", 3, 3, -1, 1, Q("0.31 in")))
sketch3.addConstraint(Sketcher.Constraint("DistanceY", -1, 1, 6, 3, Q("0.31 in")))
pocket2 = doc.addObject("PartDesign::Pocket", "Pocket001")
body.addObject(pocket2)
pocket2.Profile = sketch3
pocket2.Type = "ThroughAll"
doc.recompute()

fillet = doc.addObject("PartDesign::Fillet", "Fillet")
body.addObject(fillet)
fillet.Base = (pocket2, edges_at(pocket2, [
    (6.858, -4.703, 0),
    (6.858, 4.703, 0),
    (-17.272, 17.272, 0),
    (-17.272, -17.272, 0),
    (17.272, -17.272, 0),
    (17.272, 17.272, 0),
    (-4.703, -6.858, 0),
    (4.703, -6.858, 0),
    (-6.858, 4.703, 0),
    (-6.858, -4.703, 0),
    (4.703, 6.858, 0),
    (-4.703, 6.858, 0),
]))
fillet.Radius = Q("0.1 in")
doc.recompute()

fillet2 = doc.addObject("PartDesign::Fillet", "Fillet001")
body.addObject(fillet2)
fillet2.Base = (fillet, edges_at(fillet, [
    (14.986, 4.064, 0),
    (19.05, 4.064, 0),
    (19.05, -4.064, 0),
    (14.986, -4.064, 0),
    (4.064, -14.986, 0),
    (4.064, -19.05, 0),
    (-4.064, -19.05, 0),
    (-4.064, -14.986, 0),
    (-14.986, -4.064, 0),
    (-19.05, -4.064, 0),
    (-19.05, 4.064, 0),
    (-14.986, 4.064, 0),
    (-19.05, 19.05, 0),
    (19.05, 19.05, 0),
    (19.05, -19.05, 0),
    (-19.05, -19.05, 0),
    (-4.064, 14.986, 0),
    (-4.064, 19.05, 0),
    (4.064, 19.05, 0),
    (4.064, 14.986, 0),
]))
fillet2.Radius = Q("0.07 in")
doc.recompute()

fillet3 = doc.addObject("PartDesign::Fillet", "Fillet002")
body.addObject(fillet3)
fillet3.Base = (fillet2, edges_at(fillet2, [
    (12.442, 10.287, 0),
    (16.002, 10.287, 0),
    (16.002, 7.239, 0),
    (16.002, -7.239, 0),
    (16.002, -10.287, 0),
    (12.442, -10.287, 0),
    (-7.239, -16.002, 0),
    (-10.287, -16.002, 0),
    (-10.287, -12.442, 0),
    (10.287, -12.442, 0),
    (10.287, -16.002, 0),
    (7.239, -16.002, 0),
    (-16.002, 7.239, 0),
    (-16.002, 10.287, 0),
    (-12.442, 10.287, 0),
    (-12.442, -10.287, 0),
    (-16.002, -10.287, 0),
    (-14.986, -7.239, 0),
    (-10.287, 12.442, 0),
    (-10.287, 16.002, 0),
    (-7.239, 16.002, 0),
    (7.239, 16.002, 0),
    (10.287, 16.002, 0),
    (10.287, 12.442, 0),
]))
fillet3.Radius = Q("0.015625 in")

doc.recompute()
